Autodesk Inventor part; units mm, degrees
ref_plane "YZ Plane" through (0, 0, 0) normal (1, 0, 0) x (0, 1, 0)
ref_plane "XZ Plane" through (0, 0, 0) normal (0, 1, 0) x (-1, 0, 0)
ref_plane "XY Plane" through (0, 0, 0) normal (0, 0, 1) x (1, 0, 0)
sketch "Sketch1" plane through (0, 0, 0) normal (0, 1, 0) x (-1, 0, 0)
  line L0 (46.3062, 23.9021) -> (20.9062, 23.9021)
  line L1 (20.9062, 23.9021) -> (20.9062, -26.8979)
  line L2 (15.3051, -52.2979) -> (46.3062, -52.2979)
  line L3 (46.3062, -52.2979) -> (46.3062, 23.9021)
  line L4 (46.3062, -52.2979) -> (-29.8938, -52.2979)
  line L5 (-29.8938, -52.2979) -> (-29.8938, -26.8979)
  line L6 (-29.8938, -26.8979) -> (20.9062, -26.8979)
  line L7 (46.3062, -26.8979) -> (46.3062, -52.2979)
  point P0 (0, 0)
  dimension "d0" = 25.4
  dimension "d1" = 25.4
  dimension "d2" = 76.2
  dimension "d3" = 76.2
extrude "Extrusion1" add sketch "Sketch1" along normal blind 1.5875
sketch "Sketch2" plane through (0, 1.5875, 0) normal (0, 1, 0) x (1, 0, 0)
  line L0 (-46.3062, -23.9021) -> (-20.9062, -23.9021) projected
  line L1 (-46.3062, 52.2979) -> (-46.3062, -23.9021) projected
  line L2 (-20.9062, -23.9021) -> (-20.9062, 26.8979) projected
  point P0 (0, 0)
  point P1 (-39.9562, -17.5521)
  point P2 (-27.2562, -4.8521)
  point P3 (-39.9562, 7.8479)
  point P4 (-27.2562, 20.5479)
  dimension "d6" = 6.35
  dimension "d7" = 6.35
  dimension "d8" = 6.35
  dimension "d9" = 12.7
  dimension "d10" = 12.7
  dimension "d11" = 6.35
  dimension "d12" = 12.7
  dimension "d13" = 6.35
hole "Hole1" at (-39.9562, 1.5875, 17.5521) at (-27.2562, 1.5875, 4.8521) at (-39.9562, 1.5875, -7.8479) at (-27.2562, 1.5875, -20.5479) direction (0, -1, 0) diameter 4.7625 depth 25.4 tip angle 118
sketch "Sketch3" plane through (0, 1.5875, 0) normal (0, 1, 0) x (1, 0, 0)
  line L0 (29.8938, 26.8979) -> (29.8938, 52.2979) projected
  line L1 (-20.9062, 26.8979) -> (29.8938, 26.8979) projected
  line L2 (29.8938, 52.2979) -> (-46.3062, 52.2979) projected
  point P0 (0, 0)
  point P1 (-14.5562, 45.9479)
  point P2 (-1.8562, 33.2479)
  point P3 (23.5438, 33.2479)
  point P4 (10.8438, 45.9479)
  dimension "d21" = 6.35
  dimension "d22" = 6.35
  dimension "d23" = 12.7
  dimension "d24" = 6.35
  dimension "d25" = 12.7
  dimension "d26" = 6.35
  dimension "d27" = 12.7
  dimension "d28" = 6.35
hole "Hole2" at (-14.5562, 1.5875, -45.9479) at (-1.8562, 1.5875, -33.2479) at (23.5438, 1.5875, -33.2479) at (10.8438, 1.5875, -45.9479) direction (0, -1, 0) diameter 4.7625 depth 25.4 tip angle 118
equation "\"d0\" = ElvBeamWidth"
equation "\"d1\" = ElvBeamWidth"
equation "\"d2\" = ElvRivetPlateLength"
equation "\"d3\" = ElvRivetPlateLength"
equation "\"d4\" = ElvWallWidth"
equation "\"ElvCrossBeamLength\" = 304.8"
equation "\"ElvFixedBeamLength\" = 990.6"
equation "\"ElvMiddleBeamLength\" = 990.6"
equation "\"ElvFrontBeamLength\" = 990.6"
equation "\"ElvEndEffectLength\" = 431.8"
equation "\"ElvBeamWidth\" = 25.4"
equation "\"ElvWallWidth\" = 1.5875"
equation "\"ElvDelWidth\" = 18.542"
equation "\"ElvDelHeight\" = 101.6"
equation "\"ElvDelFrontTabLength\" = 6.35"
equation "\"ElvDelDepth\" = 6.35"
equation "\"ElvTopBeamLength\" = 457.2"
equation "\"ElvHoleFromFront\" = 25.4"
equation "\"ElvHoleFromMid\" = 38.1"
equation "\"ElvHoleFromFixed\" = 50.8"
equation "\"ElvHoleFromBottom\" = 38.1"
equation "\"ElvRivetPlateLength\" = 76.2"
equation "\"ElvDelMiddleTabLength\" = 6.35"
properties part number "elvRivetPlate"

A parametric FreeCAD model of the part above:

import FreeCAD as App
import Part
import Sketcher
Q = App.Units.Quantity

doc = App.newDocument("Part")
body = doc.addObject("PartDesign::Body", "Body")

sketch1 = body.newObject("Sketcher::SketchObject", "Sketch")
sketch1.AttachmentSupport = (doc.getObject("XZ_Plane"), [""])
sketch1.MapMode = "FlatFace"
sketch1.addGeometry([
    Part.LineSegment(App.Vector(-46.3062, -52.2979, 0), App.Vector(-46.3062, 23.9021, 0)),
    Part.LineSegment(App.Vector(-46.3062, 23.9021, 0), App.Vector(-20.9062, 23.9021, 0)),
    Part.LineSegment(App.Vector(-20.9062, 23.9021, 0), App.Vector(-20.9062, -26.8979, 0)),
    Part.LineSegment(App.Vector(-20.9062, -26.8979, 0), App.Vector(29.8938, -26.8979, 0)),
    Part.LineSegment(App.Vector(29.8938, -26.8979, 0), App.Vector(29.8938, -52.2979, 0)),
    Part.LineSegment(App.Vector(29.8938, -52.2979, 0), App.Vector(-46.3062, -52.2979, 0)),
], False)
sketch1.addConstraint([
    Sketcher.Constraint("Coincident", 0, 2, 1, 1),
    Sketcher.Constraint("Coincident", 1, 2, 2, 1),
    Sketcher.Constraint("Coincident", 2, 2, 3, 1),
    Sketcher.Constraint("Coincident", 3, 2, 4, 1),
    Sketcher.Constraint("Coincident", 4, 2, 5, 1),
    Sketcher.Constraint("Coincident", 5, 2, 0, 1),
    Sketcher.Constraint("Vertical", 0),
    Sketcher.Constraint("Horizontal", 1),
    Sketcher.Constraint("Vertical", 2),
    Sketcher.Constraint("Horizontal", 3),
    Sketcher.Constraint("Vertical", 4),
    Sketcher.Constraint("Horizontal", 5),
    Sketcher.Constraint("Equal", 5, 0),
    Sketcher.Constraint("Equal", 3, 2),
    Sketcher.Constraint("DistanceX", 1, 1, 1, 2, Q("1 in")),
    Sketcher.Constraint("DistanceX", 5, 2, 5, 1, Q("3 in")),
    Sketcher.Constraint("DistanceX", 0, 2, -1, 1, Q("46.3062 mm")),
    Sketcher.Constraint("DistanceY", -1, 1, 0, 2, Q("23.902 mm")),
])
pad1 = body.newObject("PartDesign::Pad", "Pad")
pad1.Profile = sketch1
pad1.Length = Q("0.0625 in")
pad1.Reversed = True

sketch2 = body.newObject("Sketcher::SketchObject", "Sketch001")
sketch2.AttachmentSupport = (doc.getObject("XZ_Plane"), [""])
sketch2.MapMode = "FlatFace"
sketch2.AttachmentOffset = App.Placement(App.Vector(0, 0, -0.0625 * 25.4), App.Rotation())
sketch2.addGeometry([
    Part.Circle(App.Vector(-39.9562, 17.5521, 0), App.Vector(0, 0, 1), 2.38125),
    Part.Circle(App.Vector(-27.2562, 4.8521, 0), App.Vector(0, 0, 1), 2.38125),
    Part.Circle(App.Vector(-39.9562, -7.8479, 0), App.Vector(0, 0, 1), 2.38125),
    Part.Circle(App.Vector(-27.2562, -20.5479, 0), App.Vector(0, 0, 1), 2.38125),
], False)
sketch2.addConstraint([
    Sketcher.Constraint("Equal", 0, 1),
    Sketcher.Constraint("Equal", 1, 2),
    Sketcher.Constraint("Equal", 2, 3),
    Sketcher.Constraint("Vertical", 0, 3, 2, 3),
    Sketcher.Constraint("Vertical", 1, 3, 3, 3),
    Sketcher.Constraint("Diameter", 0, Q("0.1875 in")),
    Sketcher.Constraint("DistanceY", 2, 3, 0, 3, Q("1 in")),
    Sketcher.Constraint("DistanceY", 3, 3, 1, 3, Q("1 in")),
    Sketcher.Constraint("DistanceX", 0, 3, 1, 3, Q("0.5 in")),
    Sketcher.Constraint("DistanceY", 1, 3, 0, 3, Q("0.5 in")),
    Sketcher.Constraint("DistanceX", 0, 3, -1, 1, Q("39.9562 mm")),
    Sketcher.Constraint("DistanceY", -1, 1, 0, 3, Q("17.552 mm")),
])
doc.recompute()
hole = body.newObject("PartDesign::Hole", "Hole")
hole.Profile = sketch2
hole.ThreadType = "None"
hole.Diameter = Q("0.1875 in")
hole.DepthType = "Dimension"
hole.Depth = Q("1 in")
hole.DrillPoint = "Angled"
hole.DrillPointAngle = 118
hole.Reversed = True

sketch3 = body.newObject("Sketcher::SketchObject", "Sketch002")
sketch3.AttachmentSupport = (doc.getObject("XZ_Plane"), [""])
sketch3.MapMode = "FlatFace"
sketch3.AttachmentOffset = App.Placement(App.Vector(0, 0, -0.0625 * 25.4), App.Rotation())
sketch3.addGeometry([
    Part.Circle(App.Vector(-14.5562, -45.9479, 0), App.Vector(0, 0, 1), 2.38125),
    Part.Circle(App.Vector(-1.8562, -33.2479, 0), App.Vector(0, 0, 1), 2.38125),
    Part.Circle(App.Vector(23.5438, -33.2479, 0), App.Vector(0, 0, 1), 2.38125),
    Part.Circle(App.Vector(10.8438, -45.9479, 0), App.Vector(0, 0, 1), 2.38125),
], False)
sketch3.addConstraint([
    Sketcher.Constraint("Equal", 0, 1),
    Sketcher.Constraint("Equal", 1, 2),
    Sketcher.Constraint("Equal", 2, 3),
    Sketcher.Constraint("Horizontal", 1, 3, 2, 3),
    Sketcher.Constraint("Horizontal", 0, 3, 3, 3),
    Sketcher.Constraint("Diameter", 0, Q("0.1875 in")),
    Sketcher.Constraint("DistanceX", 1, 3, 2, 3, Q("1 in")),
    Sketcher.Constraint("DistanceX", 0, 3, 3, 3, Q("1 in")),
    Sketcher.Constraint("DistanceX", 0, 3, 1, 3, Q("0.5 in")),
    Sketcher.Constraint("DistanceY", 0, 3, 1, 3, Q("0.5 in")),
    Sketcher.Constraint("DistanceX", 0, 3, -1, 1, Q("14.5562 mm")),
    Sketcher.Constraint("DistanceY", 0, 3, -1, 1, Q("45.948 mm")),
])
doc.recompute()
hole2 = body.newObject("PartDesign::Hole", "Hole001")
hole2.Profile = sketch3
hole2.ThreadType = "None"
hole2.Diameter = Q("0.1875 in")
hole2.DepthType = "Dimension"
hole2.Depth = Q("1 in")
hole2.DrillPoint = "Angled"
hole2.DrillPointAngle = 118
hole2.Reversed = True

doc.recompute()
